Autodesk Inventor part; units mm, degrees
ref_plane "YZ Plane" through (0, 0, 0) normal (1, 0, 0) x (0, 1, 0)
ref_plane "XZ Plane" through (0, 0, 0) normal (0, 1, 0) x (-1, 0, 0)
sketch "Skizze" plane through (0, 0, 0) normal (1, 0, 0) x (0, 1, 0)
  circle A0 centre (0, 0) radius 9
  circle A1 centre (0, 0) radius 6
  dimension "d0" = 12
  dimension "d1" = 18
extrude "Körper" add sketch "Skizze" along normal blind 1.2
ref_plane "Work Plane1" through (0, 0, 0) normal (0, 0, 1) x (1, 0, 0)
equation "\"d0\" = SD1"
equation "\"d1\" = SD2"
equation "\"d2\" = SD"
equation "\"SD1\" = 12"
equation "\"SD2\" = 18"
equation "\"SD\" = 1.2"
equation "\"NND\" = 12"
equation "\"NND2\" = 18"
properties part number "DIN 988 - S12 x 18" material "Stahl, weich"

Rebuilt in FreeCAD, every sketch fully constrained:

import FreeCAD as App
import Part
import Sketcher
from FreeCAD import Vector

doc = App.newDocument("Part")
params = doc.addObject("Spreadsheet::Sheet", "Params")
for row, (alias, value) in enumerate([
    ("sketch1_diameter", "18 mm"),
    ("sketch1_diameter2", "12 mm"),
    ("pad1_length", "1.2 mm"),
], start=1):
    params.set(f"A{row}", alias)
    params.set(f"B{row}", "=" + value)
    params.setAlias(f"B{row}", alias)

body = doc.addObject("PartDesign::Body", "Body")

# Sketch on YZ plane
sketch1 = doc.addObject("Sketcher::SketchObject", "Sketch")
body.addObject(sketch1)
sketch1.AttachmentSupport = (doc.YZ_Plane, [""])
sketch1.MapMode = "FlatFace"
sketch1.addGeometry([
    Part.Circle(Vector(0, 0, 0), Vector(0, 0, 1), 9),
    Part.Circle(Vector(0, 0, 0), Vector(0, 0, 1), 6),
], False)
sketch1.addConstraint([
    Sketcher.Constraint("Coincident", 0, 3, -1, 1),
    Sketcher.Constraint("Coincident", 1, 3, -1, 1),
    Sketcher.Constraint("Diameter", 0, 18.0),
    Sketcher.Constraint("Diameter", 1, 12.0),
])
sketch1.setExpression("Constraints[2]", "Params.sketch1_diameter")
sketch1.setExpression("Constraints[3]", "Params.sketch1_diameter2")
pad1 = doc.addObject("PartDesign::Pad", "Pad")
body.addObject(pad1)
pad1.Profile = sketch1
pad1.setExpression("Length", "Params.pad1_length")

doc.recompute()
